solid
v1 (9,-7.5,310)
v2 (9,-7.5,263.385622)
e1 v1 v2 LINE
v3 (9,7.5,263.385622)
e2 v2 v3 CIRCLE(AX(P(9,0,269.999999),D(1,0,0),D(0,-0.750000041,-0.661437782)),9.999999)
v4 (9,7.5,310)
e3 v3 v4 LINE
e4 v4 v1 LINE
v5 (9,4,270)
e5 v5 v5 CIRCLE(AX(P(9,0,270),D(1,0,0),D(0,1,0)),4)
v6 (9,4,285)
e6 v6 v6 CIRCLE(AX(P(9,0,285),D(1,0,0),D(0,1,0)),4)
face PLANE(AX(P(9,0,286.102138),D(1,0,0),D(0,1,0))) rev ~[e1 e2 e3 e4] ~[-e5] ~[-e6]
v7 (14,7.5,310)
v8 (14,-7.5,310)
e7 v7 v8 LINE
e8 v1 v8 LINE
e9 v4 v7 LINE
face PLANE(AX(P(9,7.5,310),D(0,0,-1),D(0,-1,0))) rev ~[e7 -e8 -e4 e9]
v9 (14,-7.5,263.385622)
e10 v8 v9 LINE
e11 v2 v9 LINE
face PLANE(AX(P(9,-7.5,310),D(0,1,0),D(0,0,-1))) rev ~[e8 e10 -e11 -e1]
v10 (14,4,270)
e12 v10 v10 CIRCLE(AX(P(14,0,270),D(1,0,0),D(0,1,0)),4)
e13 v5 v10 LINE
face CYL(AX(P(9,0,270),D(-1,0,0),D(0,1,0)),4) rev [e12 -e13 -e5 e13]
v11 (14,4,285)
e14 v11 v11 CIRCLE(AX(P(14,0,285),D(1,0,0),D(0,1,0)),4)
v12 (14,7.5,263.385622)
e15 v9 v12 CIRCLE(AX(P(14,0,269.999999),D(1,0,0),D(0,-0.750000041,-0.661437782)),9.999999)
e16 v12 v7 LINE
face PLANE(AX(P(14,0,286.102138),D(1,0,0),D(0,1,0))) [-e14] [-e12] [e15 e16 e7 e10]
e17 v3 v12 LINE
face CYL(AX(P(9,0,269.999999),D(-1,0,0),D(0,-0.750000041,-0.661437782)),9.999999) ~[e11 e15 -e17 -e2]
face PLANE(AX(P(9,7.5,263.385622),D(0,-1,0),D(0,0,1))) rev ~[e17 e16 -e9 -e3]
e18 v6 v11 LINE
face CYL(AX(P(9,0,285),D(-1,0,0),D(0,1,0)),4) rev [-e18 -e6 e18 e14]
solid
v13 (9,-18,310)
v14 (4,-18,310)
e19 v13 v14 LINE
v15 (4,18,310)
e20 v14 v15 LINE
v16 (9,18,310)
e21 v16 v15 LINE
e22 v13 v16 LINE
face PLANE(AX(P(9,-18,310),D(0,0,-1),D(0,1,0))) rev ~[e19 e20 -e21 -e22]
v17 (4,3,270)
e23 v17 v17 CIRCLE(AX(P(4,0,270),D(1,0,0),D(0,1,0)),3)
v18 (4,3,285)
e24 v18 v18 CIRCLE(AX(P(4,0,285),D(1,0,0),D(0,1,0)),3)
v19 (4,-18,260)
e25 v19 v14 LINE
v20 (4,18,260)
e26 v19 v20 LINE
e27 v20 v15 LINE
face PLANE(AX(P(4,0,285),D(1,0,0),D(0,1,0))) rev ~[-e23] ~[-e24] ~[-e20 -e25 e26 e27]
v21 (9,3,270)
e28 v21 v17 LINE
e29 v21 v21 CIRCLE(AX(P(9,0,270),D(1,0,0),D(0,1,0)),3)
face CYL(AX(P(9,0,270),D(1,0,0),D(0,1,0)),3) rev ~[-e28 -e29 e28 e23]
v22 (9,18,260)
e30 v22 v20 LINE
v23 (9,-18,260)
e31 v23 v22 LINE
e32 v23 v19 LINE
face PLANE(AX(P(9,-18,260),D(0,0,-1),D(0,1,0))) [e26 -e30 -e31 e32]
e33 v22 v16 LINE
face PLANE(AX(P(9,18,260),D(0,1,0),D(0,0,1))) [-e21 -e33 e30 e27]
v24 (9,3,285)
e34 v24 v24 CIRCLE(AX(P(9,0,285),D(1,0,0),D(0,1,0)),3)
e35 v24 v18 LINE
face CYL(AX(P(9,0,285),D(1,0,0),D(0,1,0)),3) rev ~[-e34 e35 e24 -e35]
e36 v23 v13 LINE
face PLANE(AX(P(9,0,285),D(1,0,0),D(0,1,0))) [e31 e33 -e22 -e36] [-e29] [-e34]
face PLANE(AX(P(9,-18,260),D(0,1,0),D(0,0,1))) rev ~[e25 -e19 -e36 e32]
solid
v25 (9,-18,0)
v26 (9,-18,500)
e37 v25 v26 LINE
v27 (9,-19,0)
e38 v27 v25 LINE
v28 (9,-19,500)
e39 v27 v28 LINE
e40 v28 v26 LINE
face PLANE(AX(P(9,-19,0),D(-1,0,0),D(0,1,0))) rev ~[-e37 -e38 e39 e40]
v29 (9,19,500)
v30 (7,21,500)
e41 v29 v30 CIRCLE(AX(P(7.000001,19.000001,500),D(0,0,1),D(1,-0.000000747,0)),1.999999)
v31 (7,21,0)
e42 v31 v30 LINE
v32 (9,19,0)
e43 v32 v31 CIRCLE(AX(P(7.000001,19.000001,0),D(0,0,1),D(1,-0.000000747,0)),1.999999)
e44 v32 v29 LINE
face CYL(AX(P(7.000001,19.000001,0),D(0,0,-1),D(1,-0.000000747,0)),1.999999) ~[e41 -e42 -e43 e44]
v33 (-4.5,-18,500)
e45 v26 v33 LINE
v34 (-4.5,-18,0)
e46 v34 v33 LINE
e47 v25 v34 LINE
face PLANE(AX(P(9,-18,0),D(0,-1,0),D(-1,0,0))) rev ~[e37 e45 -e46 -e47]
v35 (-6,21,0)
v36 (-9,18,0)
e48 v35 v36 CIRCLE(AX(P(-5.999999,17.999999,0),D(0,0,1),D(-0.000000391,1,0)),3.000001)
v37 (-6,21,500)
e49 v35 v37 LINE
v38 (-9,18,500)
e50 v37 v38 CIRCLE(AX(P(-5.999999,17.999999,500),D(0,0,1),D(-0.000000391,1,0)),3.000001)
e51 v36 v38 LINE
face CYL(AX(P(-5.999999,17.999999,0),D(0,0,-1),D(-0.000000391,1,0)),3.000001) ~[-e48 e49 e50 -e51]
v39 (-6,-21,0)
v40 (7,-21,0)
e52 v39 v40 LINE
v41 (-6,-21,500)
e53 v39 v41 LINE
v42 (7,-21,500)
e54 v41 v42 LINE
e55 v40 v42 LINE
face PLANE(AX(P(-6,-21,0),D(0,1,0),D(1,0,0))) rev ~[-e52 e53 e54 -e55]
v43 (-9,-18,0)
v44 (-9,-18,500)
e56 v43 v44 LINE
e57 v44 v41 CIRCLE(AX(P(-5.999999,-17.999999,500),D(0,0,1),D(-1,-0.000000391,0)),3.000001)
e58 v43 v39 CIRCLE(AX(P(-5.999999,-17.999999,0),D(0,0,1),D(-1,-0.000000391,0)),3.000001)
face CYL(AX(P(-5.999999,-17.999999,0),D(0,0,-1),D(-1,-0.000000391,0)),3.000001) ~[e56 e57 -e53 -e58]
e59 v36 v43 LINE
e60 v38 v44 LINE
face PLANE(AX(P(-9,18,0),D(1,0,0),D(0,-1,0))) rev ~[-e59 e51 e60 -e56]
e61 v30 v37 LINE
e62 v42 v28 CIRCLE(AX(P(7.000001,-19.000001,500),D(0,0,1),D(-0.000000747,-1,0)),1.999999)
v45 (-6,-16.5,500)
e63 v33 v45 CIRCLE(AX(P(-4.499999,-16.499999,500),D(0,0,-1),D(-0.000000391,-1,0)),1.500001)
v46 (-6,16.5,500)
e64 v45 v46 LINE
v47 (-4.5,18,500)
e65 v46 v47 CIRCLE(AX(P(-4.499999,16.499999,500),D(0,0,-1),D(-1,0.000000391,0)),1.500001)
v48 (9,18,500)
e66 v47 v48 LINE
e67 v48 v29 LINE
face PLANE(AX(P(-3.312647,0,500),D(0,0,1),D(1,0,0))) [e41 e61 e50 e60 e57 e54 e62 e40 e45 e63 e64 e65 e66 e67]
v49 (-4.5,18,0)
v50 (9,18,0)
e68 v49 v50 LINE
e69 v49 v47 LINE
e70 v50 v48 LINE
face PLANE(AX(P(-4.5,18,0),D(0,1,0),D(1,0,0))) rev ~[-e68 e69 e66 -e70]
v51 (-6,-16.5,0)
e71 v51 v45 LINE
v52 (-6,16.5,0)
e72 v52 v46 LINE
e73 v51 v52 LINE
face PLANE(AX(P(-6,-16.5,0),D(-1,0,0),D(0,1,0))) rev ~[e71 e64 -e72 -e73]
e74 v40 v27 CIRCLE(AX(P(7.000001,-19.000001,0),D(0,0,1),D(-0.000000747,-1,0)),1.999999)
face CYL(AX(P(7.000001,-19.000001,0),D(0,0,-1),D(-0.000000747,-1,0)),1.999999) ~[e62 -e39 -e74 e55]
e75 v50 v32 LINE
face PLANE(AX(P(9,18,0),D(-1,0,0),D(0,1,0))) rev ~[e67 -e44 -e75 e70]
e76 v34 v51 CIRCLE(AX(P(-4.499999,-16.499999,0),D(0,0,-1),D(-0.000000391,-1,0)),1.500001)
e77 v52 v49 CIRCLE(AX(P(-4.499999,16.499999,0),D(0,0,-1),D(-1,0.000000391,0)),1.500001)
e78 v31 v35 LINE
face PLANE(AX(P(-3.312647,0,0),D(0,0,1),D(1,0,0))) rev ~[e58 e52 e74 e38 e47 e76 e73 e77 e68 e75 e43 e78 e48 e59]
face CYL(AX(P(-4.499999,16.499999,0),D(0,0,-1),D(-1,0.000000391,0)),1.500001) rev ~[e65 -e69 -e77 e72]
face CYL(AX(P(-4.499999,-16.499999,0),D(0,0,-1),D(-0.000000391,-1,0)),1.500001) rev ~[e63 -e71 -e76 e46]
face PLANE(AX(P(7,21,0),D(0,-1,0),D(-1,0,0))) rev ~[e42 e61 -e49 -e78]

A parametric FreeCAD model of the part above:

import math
import FreeCAD as App
import Part
import Sketcher
from FreeCAD import Vector

doc = App.newDocument("Part")
body = doc.addObject("PartDesign::Body", "Body")

sketch1 = doc.addObject("Sketcher::SketchObject", "Sketch")
body.addObject(sketch1)
sketch1.AttachmentSupport = (doc.XY_Plane, [""])
sketch1.MapMode = "FlatFace"
sketch1.addGeometry([
    Part.ArcOfCircle(Part.Circle(Vector(7.000001, 19.000001, 0), Vector(0, 0, 1), 1.999999), math.radians(-0.000043), math.radians(90.000043)),
    Part.LineSegment(Vector(7, 21, 0), Vector(-6, 21, 0)),
    Part.ArcOfCircle(Part.Circle(Vector(-5.999999, 17.999999, 0), Vector(0, 0, 1), 3.000001), math.radians(90.000022), math.radians(179.999978)),
    Part.LineSegment(Vector(-9, 18, 0), Vector(-9, -18, 0)),
    Part.ArcOfCircle(Part.Circle(Vector(-5.999999, -17.999999, 0), Vector(0, 0, 1), 3.000001), math.radians(-179.999978), math.radians(-90.000022)),
    Part.LineSegment(Vector(-6, -21, 0), Vector(7, -21, 0)),
    Part.ArcOfCircle(Part.Circle(Vector(7.000001, -19.000001, 0), Vector(0, 0, 1), 1.999999), math.radians(-90.000043), math.radians(0.000043)),
    Part.LineSegment(Vector(9, -19, 0), Vector(9, -18, 0)),
    Part.LineSegment(Vector(9, -18, 0), Vector(-4.5, -18, 0)),
    Part.ArcOfCircle(Part.Circle(Vector(-4.499999, -16.499999, 0), Vector(0, 0, 1), 1.500001), math.radians(-179.999978), math.radians(-90.000022)),
    Part.LineSegment(Vector(-6, -16.5, 0), Vector(-6, 16.5, 0)),
    Part.ArcOfCircle(Part.Circle(Vector(-4.499999, 16.499999, 0), Vector(0, 0, 1), 1.500001), math.radians(90.000022), math.radians(179.999978)),
    Part.LineSegment(Vector(-4.5, 18, 0), Vector(9, 18, 0)),
    Part.LineSegment(Vector(9, 18, 0), Vector(9, 19, 0)),
], False)
sketch1.addConstraint([
    Sketcher.Constraint("Tangent", 0, 2, 1, 1),
    Sketcher.Constraint("Tangent", 1, 2, 2, 1),
    Sketcher.Constraint("Tangent", 2, 2, 3, 1),
    Sketcher.Constraint("Tangent", 3, 2, 4, 1),
    Sketcher.Constraint("Tangent", 4, 2, 5, 1),
    Sketcher.Constraint("Tangent", 5, 2, 6, 1),
    Sketcher.Constraint("Tangent", 6, 2, 7, 1),
    Sketcher.Constraint("Coincident", 7, 2, 8, 1),
    Sketcher.Constraint("Tangent", 8, 2, 9, 2),
    Sketcher.Constraint("Tangent", 9, 1, 10, 1),
    Sketcher.Constraint("Tangent", 10, 2, 11, 2),
    Sketcher.Constraint("Tangent", 11, 1, 12, 1),
    Sketcher.Constraint("Coincident", 12, 2, 13, 1),
    Sketcher.Constraint("Tangent", 13, 2, 0, 1),
    Sketcher.Constraint("Horizontal", 1),
    Sketcher.Constraint("Vertical", 3),
    Sketcher.Constraint("Horizontal", 5),
    Sketcher.Constraint("Vertical", 7),
    Sketcher.Constraint("Horizontal", 8),
    Sketcher.Constraint("Vertical", 10),
    Sketcher.Constraint("Horizontal", 12),
    Sketcher.Constraint("Vertical", 13),
    Sketcher.Constraint("Equal", 2, 4),
    Sketcher.Constraint("Equal", 0, 6),
    Sketcher.Constraint("Equal", 9, 11),
    Sketcher.Constraint("Symmetric", 2, 2, 7, 2, -1, 1),
    Sketcher.Constraint("Symmetric", 3, 2, 12, 2, -1, 1),
    Sketcher.Constraint("Horizontal", 3, 2, 7, 2),
    Sketcher.Constraint("Vertical", 4, 2, 9, 1),
    Sketcher.Constraint("Radius", 0, 1.999999),
    Sketcher.Constraint("Radius", 2, 3.000001),
    Sketcher.Constraint("Radius", 9, 1.500001),
    Sketcher.Constraint("DistanceX", 1, 2, 1, 1, 13.0),
    Sketcher.Constraint("DistanceY", 3, 2, 3, 1, 36.0),
])
pad1 = doc.addObject("PartDesign::Pad", "Pad")
body.addObject(pad1)
pad1.Profile = sketch1
pad1.Length = 500
body2 = doc.addObject("PartDesign::Body", "Body001")

sketch2 = doc.addObject("Sketcher::SketchObject", "Sketch001")
body2.addObject(sketch2)
sketch2.AttachmentSupport = (doc.getObject("YZ_Plane001"), [""])
sketch2.MapMode = "FlatFace"
sketch2.AttachmentOffset = App.Placement(Vector(0, 0, 9), App.Rotation())
sketch2.addGeometry([
    Part.LineSegment(Vector(-18, 310, 0), Vector(-18, 260, 0)),
    Part.LineSegment(Vector(-18, 260, 0), Vector(18, 260, 0)),
    Part.LineSegment(Vector(18, 260, 0), Vector(18, 310, 0)),
    Part.LineSegment(Vector(18, 310, 0), Vector(-18, 310, 0)),
    Part.Circle(Vector(0, 270, 0), Vector(0, 0, 1), 3),
    Part.Circle(Vector(0, 285, 0), Vector(0, 0, 1), 3),
], False)
sketch2.addConstraint([
    Sketcher.Constraint("Coincident", 0, 2, 1, 1),
    Sketcher.Constraint("Coincident", 1, 2, 2, 1),
    Sketcher.Constraint("Coincident", 2, 2, 3, 1),
    Sketcher.Constraint("Coincident", 3, 2, 0, 1),
    Sketcher.Constraint("Vertical", 0),
    Sketcher.Constraint("Horizontal", 1),
    Sketcher.Constraint("Vertical", 2),
    Sketcher.Constraint("Horizontal", 3),
    Sketcher.Constraint("Equal", 4, 5),
    Sketcher.Constraint("PointOnObject", 4, 3, -2),
    Sketcher.Constraint("PointOnObject", 5, 3, -2),
    Sketcher.Constraint("Diameter", 4, 6.0),
    Sketcher.Constraint("DistanceX", 1, 1, 1, 2, 36.0),
    Sketcher.Constraint("DistanceY", 0, 2, 0, 1, 50.0),
    Sketcher.Constraint("DistanceY", -1, 1, 4, 3, 270.0),
    Sketcher.Constraint("DistanceY", -1, 1, 5, 3, 285.0),
    Sketcher.Constraint("DistanceX", 0, 2, -1, 1, 18.0),
    Sketcher.Constraint("DistanceY", -1, 1, 0, 2, 260.0),
])
pad2 = doc.addObject("PartDesign::Pad", "Pad001")
body2.addObject(pad2)
pad2.Profile = sketch2
pad2.Length = 5
pad2.Reversed = True
body3 = doc.addObject("PartDesign::Body", "Body002")

sketch3 = doc.addObject("Sketcher::SketchObject", "Sketch002")
body3.addObject(sketch3)
sketch3.AttachmentSupport = (doc.getObject("YZ_Plane002"), [""])
sketch3.MapMode = "FlatFace"
sketch3.AttachmentOffset = App.Placement(Vector(0, 0, 9), App.Rotation())
sketch3.addGeometry([
    Part.LineSegment(Vector(7.5, 310, 0), Vector(-7.5, 310, 0)),
    Part.LineSegment(Vector(-7.5, 310, 0), Vector(-7.5, 263.385622, 0)),
    Part.ArcOfCircle(Part.Circle(Vector(0, 269.999999, 0), Vector(0, 0, 1), 9.999999), math.radians(-138.590381), math.radians(-41.409619)),
    Part.LineSegment(Vector(7.5, 263.385622, 0), Vector(7.5, 310, 0)),
    Part.Circle(Vector(0, 270, 0), Vector(0, 0, 1), 4),
    Part.Circle(Vector(0, 285, 0), Vector(0, 0, 1), 4),
], False)
sketch3.addConstraint([
    Sketcher.Constraint("Coincident", 0, 2, 1, 1),
    Sketcher.Constraint("Coincident", 1, 2, 2, 1),
    Sketcher.Constraint("Coincident", 2, 2, 3, 1),
    Sketcher.Constraint("Coincident", 3, 2, 0, 1),
    Sketcher.Constraint("Horizontal", 0),
    Sketcher.Constraint("Vertical", 1),
    Sketcher.Constraint("Vertical", 3),
    Sketcher.Constraint("Coincident", 4, 3, 2, 3),
    Sketcher.Constraint("Equal", 4, 5),
    Sketcher.Constraint("Symmetric", 1, 2, 2, 2, -2),
    Sketcher.Constraint("PointOnObject", 5, 3, -2),
    Sketcher.Constraint("Diameter", 4, 8.0),
    Sketcher.Constraint("Radius", 2, 9.999999),
    Sketcher.Constraint("DistanceX", 0, 2, 0, 1, 15.0),
    Sketcher.Constraint("DistanceY", -1, 1, 2, 3, 269.999999),
    Sketcher.Constraint("DistanceY", -1, 1, 5, 3, 285.0),
    Sketcher.Constraint("DistanceY", -1, 1, 0, 2, 310.0),
])
pad3 = doc.addObject("PartDesign::Pad", "Pad002")
body3.addObject(pad3)
pad3.Profile = sketch3
pad3.Length = 5

doc.recompute()
